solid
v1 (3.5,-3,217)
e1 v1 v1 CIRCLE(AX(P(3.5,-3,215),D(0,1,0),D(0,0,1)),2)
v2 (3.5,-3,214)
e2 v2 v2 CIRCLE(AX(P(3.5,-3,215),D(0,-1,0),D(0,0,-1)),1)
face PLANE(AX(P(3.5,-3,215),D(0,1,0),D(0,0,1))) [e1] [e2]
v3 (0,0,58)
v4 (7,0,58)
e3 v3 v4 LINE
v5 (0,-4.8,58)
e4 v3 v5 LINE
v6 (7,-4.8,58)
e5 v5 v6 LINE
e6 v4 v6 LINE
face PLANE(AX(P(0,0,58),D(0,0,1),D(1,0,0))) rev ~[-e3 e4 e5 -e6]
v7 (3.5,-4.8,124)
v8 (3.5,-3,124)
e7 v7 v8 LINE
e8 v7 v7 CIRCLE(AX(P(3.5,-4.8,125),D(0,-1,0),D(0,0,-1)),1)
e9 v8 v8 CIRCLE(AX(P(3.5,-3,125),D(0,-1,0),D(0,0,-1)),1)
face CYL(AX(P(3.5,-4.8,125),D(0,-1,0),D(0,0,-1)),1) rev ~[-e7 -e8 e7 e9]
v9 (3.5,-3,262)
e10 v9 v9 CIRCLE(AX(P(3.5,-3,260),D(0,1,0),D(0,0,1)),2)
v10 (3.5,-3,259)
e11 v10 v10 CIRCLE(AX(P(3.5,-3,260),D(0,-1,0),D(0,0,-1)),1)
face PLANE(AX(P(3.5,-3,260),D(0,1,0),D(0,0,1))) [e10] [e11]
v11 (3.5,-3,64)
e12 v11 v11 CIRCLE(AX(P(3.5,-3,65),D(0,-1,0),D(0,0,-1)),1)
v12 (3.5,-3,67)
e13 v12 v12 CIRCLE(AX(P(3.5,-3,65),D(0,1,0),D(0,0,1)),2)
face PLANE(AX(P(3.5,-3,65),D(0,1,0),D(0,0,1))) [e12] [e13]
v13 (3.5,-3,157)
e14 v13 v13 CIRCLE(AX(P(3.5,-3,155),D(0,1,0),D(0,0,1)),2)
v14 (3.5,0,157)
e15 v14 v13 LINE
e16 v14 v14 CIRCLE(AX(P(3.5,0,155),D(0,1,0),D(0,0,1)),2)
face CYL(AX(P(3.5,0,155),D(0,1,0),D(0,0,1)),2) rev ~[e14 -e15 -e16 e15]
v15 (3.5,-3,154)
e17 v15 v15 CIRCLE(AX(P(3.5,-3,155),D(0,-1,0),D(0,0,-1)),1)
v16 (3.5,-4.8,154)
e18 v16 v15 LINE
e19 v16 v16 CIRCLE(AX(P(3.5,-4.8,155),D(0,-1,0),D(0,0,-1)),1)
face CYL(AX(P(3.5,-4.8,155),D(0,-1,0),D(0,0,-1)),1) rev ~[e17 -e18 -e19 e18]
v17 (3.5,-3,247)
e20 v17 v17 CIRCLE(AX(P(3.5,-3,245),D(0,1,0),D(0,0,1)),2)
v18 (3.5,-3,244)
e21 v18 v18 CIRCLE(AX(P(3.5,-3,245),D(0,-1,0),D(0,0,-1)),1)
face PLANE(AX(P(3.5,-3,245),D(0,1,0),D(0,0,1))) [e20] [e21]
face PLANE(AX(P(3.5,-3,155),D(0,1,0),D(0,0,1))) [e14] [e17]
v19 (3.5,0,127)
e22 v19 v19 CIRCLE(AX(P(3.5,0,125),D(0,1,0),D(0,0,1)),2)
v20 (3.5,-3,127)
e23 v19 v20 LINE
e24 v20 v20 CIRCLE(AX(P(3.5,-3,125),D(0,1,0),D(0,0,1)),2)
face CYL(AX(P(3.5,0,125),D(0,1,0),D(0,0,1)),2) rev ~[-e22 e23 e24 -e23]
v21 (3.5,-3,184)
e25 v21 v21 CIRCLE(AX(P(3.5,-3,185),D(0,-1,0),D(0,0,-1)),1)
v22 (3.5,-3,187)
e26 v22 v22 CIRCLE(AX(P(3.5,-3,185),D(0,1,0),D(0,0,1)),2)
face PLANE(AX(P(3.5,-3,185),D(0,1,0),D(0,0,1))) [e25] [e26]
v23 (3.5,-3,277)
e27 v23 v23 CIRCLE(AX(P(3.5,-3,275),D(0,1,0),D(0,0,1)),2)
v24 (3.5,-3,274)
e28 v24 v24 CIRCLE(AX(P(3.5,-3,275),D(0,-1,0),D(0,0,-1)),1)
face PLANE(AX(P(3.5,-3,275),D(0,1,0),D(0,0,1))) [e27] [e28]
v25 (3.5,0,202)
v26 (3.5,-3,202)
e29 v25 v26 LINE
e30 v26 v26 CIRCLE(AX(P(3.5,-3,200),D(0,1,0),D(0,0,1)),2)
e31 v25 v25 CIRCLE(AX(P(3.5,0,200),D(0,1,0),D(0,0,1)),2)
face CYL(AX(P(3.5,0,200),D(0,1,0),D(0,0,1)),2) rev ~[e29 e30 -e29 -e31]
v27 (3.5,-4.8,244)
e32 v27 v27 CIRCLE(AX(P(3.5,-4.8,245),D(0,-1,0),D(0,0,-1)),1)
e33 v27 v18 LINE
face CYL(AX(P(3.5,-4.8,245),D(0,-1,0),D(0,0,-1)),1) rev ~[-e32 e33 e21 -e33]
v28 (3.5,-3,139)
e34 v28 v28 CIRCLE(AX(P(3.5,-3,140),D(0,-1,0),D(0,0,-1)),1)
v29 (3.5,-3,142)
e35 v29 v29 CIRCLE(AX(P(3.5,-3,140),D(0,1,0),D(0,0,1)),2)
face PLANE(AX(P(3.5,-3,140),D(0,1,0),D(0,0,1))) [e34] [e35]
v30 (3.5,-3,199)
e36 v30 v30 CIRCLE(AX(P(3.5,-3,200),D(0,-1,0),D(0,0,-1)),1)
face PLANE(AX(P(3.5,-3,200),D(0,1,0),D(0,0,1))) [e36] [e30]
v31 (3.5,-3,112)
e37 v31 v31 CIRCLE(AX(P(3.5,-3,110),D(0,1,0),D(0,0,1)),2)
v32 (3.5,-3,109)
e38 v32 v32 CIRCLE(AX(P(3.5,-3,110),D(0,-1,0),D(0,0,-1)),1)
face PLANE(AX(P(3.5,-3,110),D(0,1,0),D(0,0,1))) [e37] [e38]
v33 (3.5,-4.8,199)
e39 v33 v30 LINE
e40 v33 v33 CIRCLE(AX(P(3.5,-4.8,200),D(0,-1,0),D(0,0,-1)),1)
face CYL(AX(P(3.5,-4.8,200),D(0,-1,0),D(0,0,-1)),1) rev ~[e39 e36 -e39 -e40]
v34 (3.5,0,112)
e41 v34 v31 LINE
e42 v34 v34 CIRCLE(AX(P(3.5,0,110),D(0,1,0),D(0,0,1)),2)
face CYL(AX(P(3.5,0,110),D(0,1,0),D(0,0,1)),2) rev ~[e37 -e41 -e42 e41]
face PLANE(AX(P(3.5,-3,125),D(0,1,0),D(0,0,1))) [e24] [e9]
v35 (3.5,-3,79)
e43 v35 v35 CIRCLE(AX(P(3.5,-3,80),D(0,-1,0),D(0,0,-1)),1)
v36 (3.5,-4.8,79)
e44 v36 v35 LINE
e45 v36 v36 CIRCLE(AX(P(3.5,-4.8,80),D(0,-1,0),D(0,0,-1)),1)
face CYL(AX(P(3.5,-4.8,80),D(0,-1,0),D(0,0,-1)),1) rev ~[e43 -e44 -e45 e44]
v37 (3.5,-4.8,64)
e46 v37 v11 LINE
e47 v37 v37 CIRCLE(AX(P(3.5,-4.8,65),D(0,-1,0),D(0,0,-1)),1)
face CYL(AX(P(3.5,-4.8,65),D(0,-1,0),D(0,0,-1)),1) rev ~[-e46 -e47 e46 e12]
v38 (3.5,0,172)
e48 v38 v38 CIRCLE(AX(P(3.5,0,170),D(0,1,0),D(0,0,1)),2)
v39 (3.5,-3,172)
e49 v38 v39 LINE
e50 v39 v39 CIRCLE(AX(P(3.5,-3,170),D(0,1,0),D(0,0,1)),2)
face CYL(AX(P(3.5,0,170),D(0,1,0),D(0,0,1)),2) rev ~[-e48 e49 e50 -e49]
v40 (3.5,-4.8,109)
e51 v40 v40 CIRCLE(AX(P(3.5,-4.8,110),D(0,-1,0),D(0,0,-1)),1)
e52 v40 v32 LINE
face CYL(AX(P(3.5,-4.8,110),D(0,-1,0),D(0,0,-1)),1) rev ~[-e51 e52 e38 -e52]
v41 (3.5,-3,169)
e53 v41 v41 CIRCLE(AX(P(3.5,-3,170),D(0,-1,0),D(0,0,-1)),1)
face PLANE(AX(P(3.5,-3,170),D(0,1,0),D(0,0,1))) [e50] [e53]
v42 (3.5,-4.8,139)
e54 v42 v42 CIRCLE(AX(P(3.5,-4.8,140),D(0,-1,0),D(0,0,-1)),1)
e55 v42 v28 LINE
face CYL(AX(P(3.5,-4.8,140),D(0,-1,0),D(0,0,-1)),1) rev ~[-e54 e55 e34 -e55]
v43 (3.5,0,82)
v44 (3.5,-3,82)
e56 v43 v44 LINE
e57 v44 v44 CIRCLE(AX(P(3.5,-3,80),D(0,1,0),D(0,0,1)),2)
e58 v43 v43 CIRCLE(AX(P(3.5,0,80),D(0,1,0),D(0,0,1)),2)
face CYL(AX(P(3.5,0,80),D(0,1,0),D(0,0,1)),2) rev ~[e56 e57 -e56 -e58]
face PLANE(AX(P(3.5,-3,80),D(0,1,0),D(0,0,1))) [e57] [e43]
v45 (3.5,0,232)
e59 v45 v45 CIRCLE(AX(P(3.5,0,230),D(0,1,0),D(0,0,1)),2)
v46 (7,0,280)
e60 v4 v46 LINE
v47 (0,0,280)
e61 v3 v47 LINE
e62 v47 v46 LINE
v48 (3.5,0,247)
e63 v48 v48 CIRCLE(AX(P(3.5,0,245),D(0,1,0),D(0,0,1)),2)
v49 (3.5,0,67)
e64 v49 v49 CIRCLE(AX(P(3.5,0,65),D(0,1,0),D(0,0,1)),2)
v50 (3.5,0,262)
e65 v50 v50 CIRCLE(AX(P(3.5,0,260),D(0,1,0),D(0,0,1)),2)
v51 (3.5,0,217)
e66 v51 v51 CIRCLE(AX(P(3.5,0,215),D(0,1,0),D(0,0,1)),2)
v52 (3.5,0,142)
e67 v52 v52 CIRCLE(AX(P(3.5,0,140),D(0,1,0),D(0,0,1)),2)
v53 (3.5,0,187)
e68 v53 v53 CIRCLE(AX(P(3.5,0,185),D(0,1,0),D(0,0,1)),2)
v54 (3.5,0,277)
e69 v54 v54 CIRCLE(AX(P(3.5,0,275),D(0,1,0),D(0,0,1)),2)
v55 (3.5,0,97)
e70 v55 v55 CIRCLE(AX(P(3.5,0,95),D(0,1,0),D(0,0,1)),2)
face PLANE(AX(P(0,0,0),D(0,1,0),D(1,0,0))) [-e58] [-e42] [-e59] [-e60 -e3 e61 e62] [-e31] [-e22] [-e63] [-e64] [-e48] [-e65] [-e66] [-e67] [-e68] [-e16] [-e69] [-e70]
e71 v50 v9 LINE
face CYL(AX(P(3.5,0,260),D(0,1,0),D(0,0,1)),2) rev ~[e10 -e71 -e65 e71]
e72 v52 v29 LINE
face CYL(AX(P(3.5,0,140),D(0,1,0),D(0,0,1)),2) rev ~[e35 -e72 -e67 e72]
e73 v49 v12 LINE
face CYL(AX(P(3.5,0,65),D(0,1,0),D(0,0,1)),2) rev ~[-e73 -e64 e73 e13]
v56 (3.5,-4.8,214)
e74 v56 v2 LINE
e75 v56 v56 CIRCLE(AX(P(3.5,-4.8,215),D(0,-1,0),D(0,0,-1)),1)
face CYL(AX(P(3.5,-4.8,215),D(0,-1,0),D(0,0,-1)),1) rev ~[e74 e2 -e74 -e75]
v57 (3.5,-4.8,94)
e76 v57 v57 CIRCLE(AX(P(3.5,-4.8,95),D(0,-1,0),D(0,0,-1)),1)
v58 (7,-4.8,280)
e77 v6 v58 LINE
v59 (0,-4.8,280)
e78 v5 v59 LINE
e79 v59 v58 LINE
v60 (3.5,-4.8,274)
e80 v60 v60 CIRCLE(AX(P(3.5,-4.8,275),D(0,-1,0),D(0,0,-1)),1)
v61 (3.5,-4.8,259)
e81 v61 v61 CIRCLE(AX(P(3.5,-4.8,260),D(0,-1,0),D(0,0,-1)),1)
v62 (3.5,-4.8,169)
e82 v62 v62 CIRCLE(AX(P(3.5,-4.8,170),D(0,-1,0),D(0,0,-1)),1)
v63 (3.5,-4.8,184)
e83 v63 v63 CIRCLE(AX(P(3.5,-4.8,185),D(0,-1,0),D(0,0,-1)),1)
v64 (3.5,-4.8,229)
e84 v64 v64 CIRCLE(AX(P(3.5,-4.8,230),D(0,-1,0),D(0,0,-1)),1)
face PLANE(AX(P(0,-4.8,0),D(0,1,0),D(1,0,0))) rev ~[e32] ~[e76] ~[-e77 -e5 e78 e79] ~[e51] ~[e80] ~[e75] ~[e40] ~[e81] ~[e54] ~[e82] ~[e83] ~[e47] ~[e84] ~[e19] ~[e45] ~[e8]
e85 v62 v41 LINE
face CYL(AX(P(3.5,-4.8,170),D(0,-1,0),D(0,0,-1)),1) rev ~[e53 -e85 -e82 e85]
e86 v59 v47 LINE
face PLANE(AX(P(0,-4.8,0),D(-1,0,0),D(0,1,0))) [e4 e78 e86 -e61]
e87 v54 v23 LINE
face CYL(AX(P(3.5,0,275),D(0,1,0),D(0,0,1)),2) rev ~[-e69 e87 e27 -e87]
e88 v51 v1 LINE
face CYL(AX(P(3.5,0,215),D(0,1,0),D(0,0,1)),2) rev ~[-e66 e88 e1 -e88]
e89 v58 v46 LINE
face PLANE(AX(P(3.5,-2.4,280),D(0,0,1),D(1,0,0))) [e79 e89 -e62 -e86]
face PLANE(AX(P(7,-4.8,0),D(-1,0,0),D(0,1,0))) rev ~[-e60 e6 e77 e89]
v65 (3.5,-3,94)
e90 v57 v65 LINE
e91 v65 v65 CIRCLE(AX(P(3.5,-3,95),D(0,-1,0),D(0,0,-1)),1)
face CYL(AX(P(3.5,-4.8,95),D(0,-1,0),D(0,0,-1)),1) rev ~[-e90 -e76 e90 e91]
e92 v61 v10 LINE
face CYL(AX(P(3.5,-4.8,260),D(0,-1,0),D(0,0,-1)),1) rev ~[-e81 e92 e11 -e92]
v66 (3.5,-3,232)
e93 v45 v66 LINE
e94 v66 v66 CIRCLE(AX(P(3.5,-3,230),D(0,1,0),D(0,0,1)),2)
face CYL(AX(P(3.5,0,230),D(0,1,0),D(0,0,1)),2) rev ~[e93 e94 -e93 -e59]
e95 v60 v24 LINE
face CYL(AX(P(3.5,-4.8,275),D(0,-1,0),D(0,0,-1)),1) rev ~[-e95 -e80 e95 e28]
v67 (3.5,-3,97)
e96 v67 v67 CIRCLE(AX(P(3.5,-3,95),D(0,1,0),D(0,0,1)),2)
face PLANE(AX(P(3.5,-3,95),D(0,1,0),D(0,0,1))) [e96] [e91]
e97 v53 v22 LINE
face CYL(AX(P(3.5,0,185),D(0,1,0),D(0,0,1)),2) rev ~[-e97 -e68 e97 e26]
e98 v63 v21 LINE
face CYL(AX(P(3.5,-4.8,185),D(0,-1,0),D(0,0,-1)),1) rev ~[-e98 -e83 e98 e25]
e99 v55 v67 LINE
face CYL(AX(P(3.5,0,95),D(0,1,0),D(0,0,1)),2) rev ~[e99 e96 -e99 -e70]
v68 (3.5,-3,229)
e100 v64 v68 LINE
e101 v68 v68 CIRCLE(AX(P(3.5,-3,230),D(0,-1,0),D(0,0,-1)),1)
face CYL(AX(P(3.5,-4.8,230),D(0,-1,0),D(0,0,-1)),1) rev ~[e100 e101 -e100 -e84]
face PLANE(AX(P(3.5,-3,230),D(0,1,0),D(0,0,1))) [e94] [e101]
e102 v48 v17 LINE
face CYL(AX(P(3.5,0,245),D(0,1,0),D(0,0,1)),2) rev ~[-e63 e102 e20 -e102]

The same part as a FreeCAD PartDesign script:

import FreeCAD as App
import Part
import Sketcher

V = App.Vector
Q = App.Units.Quantity


def add_polygon(sketch, points):
    """Adds a closed chain of lines whose ends are joined by coincident constraints."""
    first, n = sketch.GeometryCount, len(points)
    for a, b in zip(points, points[1:] + points[:1]):
        sketch.addGeometry(Part.LineSegment(App.Vector(*a, 0), App.Vector(*b, 0)), False)
    for i in range(n):
        sketch.addConstraint(Sketcher.Constraint("Coincident", first + i, 2, first + (i + 1) % n, 1))

doc = App.newDocument("Part")
body = doc.addObject("PartDesign::Body", "Body")

# Sketch on XY plane
sketch1 = body.newObject("Sketcher::SketchObject", "Sketch")
sketch1.AttachmentSupport = (doc.getObject("XY_Plane"), [""])
sketch1.MapMode = "FlatFace"
add_polygon(sketch1, [(0, 0), (0, -4.8), (7, -4.8), (7, 0)])  # lines 0-3
sketch1.addConstraint(Sketcher.Constraint("Vertical", 0))
sketch1.addConstraint(Sketcher.Constraint("Horizontal", 1))
sketch1.addConstraint(Sketcher.Constraint("Vertical", 2))
sketch1.addConstraint(Sketcher.Constraint("Horizontal", 3))
sketch1.addConstraint(Sketcher.Constraint("Coincident", 3, 2, -1, 1))
sketch1.addConstraint(Sketcher.Constraint("DistanceX", 1, 1, 1, 2, Q("7 mm")))
sketch1.addConstraint(Sketcher.Constraint("DistanceY", 0, 2, 0, 1, Q("4.8 mm")))
pad1 = body.newObject("PartDesign::Pad", "Pad")
pad1.Profile = sketch1
pad1.Length = 280

# Sketch on XZ plane
sketch2 = body.newObject("Sketcher::SketchObject", "Sketch001")
sketch2.AttachmentSupport = (doc.getObject("XZ_Plane"), [""])
sketch2.MapMode = "FlatFace"
sketch2.addGeometry(Part.Circle(V(3.5, 5, 0), V(0, 0, 1), 2), False)
sketch2.addConstraint(Sketcher.Constraint("Diameter", 0, Q("4 mm")))
sketch2.addConstraint(Sketcher.Constraint("DistanceY", -1, 1, 0, 3, Q("5 mm")))
sketch2.addConstraint(Sketcher.Constraint("DistanceX", -1, 1, 0, 3, Q("3.5 mm")))
pocket1 = body.newObject("PartDesign::Pocket", "Pocket")
pocket1.Profile = sketch2
pocket1.Length = 3
pocket1.Reversed = True
doc.recompute()

linearpattern = body.newObject("PartDesign::LinearPattern", "LinearPattern")
linearpattern.Originals = [pocket1]
linearpattern.Direction = (doc.getObject("Z_Axis"), [""])
linearpattern.Mode = "offset"
linearpattern.Offset = 15
linearpattern.Occurrences = 19
body.Tip = linearpattern

# Sketch on XZ plane
sketch3 = body.newObject("Sketcher::SketchObject", "Sketch002")
sketch3.AttachmentSupport = (doc.getObject("XZ_Plane"), [""])
sketch3.MapMode = "FlatFace"
sketch3.AttachmentOffset = App.Placement(V(0, 0, 4.8), App.Rotation())
sketch3.addGeometry(Part.Circle(V(3.5, 5, 0), V(0, 0, 1), 1), False)
sketch3.addConstraint(Sketcher.Constraint("Diameter", 0, Q("2 mm")))
sketch3.addConstraint(Sketcher.Constraint("DistanceY", -1, 1, 0, 3, Q("5 mm")))
sketch3.addConstraint(Sketcher.Constraint("DistanceX", -1, 1, 0, 3, Q("3.5 mm")))
pocket2 = body.newObject("PartDesign::Pocket", "Pocket001")
pocket2.Profile = sketch3
pocket2.Length = 3
doc.recompute()

linearpattern2 = body.newObject("PartDesign::LinearPattern", "LinearPattern001")
linearpattern2.Originals = [pocket2]
linearpattern2.Direction = (doc.getObject("Z_Axis"), [""])
linearpattern2.Mode = "offset"
linearpattern2.Offset = 15
linearpattern2.Occurrences = 19
body.Tip = linearpattern2

# Sketch on XZ plane
sketch4 = body.newObject("Sketcher::SketchObject", "Sketch003")
sketch4.AttachmentSupport = (doc.getObject("XZ_Plane"), [""])
sketch4.MapMode = "FlatFace"
add_polygon(sketch4, [(0, 0), (0, 58), (7, 58), (7, 0)])  # lines 0-3
sketch4.addConstraint(Sketcher.Constraint("Vertical", 0))
sketch4.addConstraint(Sketcher.Constraint("Horizontal", 1))
sketch4.addConstraint(Sketcher.Constraint("Vertical", 2))
sketch4.addConstraint(Sketcher.Constraint("Horizontal", 3))
sketch4.addConstraint(Sketcher.Constraint("Coincident", 3, 2, -1, 1))
sketch4.addConstraint(Sketcher.Constraint("DistanceX", 1, 1, 1, 2, Q("7 mm")))
sketch4.addConstraint(Sketcher.Constraint("DistanceY", 0, 1, 0, 2, Q("58 mm")))
pocket3 = body.newObject("PartDesign::Pocket", "Pocket002")
pocket3.Profile = sketch4
pocket3.Length = 10
pocket3.Reversed = True

doc.recompute()
